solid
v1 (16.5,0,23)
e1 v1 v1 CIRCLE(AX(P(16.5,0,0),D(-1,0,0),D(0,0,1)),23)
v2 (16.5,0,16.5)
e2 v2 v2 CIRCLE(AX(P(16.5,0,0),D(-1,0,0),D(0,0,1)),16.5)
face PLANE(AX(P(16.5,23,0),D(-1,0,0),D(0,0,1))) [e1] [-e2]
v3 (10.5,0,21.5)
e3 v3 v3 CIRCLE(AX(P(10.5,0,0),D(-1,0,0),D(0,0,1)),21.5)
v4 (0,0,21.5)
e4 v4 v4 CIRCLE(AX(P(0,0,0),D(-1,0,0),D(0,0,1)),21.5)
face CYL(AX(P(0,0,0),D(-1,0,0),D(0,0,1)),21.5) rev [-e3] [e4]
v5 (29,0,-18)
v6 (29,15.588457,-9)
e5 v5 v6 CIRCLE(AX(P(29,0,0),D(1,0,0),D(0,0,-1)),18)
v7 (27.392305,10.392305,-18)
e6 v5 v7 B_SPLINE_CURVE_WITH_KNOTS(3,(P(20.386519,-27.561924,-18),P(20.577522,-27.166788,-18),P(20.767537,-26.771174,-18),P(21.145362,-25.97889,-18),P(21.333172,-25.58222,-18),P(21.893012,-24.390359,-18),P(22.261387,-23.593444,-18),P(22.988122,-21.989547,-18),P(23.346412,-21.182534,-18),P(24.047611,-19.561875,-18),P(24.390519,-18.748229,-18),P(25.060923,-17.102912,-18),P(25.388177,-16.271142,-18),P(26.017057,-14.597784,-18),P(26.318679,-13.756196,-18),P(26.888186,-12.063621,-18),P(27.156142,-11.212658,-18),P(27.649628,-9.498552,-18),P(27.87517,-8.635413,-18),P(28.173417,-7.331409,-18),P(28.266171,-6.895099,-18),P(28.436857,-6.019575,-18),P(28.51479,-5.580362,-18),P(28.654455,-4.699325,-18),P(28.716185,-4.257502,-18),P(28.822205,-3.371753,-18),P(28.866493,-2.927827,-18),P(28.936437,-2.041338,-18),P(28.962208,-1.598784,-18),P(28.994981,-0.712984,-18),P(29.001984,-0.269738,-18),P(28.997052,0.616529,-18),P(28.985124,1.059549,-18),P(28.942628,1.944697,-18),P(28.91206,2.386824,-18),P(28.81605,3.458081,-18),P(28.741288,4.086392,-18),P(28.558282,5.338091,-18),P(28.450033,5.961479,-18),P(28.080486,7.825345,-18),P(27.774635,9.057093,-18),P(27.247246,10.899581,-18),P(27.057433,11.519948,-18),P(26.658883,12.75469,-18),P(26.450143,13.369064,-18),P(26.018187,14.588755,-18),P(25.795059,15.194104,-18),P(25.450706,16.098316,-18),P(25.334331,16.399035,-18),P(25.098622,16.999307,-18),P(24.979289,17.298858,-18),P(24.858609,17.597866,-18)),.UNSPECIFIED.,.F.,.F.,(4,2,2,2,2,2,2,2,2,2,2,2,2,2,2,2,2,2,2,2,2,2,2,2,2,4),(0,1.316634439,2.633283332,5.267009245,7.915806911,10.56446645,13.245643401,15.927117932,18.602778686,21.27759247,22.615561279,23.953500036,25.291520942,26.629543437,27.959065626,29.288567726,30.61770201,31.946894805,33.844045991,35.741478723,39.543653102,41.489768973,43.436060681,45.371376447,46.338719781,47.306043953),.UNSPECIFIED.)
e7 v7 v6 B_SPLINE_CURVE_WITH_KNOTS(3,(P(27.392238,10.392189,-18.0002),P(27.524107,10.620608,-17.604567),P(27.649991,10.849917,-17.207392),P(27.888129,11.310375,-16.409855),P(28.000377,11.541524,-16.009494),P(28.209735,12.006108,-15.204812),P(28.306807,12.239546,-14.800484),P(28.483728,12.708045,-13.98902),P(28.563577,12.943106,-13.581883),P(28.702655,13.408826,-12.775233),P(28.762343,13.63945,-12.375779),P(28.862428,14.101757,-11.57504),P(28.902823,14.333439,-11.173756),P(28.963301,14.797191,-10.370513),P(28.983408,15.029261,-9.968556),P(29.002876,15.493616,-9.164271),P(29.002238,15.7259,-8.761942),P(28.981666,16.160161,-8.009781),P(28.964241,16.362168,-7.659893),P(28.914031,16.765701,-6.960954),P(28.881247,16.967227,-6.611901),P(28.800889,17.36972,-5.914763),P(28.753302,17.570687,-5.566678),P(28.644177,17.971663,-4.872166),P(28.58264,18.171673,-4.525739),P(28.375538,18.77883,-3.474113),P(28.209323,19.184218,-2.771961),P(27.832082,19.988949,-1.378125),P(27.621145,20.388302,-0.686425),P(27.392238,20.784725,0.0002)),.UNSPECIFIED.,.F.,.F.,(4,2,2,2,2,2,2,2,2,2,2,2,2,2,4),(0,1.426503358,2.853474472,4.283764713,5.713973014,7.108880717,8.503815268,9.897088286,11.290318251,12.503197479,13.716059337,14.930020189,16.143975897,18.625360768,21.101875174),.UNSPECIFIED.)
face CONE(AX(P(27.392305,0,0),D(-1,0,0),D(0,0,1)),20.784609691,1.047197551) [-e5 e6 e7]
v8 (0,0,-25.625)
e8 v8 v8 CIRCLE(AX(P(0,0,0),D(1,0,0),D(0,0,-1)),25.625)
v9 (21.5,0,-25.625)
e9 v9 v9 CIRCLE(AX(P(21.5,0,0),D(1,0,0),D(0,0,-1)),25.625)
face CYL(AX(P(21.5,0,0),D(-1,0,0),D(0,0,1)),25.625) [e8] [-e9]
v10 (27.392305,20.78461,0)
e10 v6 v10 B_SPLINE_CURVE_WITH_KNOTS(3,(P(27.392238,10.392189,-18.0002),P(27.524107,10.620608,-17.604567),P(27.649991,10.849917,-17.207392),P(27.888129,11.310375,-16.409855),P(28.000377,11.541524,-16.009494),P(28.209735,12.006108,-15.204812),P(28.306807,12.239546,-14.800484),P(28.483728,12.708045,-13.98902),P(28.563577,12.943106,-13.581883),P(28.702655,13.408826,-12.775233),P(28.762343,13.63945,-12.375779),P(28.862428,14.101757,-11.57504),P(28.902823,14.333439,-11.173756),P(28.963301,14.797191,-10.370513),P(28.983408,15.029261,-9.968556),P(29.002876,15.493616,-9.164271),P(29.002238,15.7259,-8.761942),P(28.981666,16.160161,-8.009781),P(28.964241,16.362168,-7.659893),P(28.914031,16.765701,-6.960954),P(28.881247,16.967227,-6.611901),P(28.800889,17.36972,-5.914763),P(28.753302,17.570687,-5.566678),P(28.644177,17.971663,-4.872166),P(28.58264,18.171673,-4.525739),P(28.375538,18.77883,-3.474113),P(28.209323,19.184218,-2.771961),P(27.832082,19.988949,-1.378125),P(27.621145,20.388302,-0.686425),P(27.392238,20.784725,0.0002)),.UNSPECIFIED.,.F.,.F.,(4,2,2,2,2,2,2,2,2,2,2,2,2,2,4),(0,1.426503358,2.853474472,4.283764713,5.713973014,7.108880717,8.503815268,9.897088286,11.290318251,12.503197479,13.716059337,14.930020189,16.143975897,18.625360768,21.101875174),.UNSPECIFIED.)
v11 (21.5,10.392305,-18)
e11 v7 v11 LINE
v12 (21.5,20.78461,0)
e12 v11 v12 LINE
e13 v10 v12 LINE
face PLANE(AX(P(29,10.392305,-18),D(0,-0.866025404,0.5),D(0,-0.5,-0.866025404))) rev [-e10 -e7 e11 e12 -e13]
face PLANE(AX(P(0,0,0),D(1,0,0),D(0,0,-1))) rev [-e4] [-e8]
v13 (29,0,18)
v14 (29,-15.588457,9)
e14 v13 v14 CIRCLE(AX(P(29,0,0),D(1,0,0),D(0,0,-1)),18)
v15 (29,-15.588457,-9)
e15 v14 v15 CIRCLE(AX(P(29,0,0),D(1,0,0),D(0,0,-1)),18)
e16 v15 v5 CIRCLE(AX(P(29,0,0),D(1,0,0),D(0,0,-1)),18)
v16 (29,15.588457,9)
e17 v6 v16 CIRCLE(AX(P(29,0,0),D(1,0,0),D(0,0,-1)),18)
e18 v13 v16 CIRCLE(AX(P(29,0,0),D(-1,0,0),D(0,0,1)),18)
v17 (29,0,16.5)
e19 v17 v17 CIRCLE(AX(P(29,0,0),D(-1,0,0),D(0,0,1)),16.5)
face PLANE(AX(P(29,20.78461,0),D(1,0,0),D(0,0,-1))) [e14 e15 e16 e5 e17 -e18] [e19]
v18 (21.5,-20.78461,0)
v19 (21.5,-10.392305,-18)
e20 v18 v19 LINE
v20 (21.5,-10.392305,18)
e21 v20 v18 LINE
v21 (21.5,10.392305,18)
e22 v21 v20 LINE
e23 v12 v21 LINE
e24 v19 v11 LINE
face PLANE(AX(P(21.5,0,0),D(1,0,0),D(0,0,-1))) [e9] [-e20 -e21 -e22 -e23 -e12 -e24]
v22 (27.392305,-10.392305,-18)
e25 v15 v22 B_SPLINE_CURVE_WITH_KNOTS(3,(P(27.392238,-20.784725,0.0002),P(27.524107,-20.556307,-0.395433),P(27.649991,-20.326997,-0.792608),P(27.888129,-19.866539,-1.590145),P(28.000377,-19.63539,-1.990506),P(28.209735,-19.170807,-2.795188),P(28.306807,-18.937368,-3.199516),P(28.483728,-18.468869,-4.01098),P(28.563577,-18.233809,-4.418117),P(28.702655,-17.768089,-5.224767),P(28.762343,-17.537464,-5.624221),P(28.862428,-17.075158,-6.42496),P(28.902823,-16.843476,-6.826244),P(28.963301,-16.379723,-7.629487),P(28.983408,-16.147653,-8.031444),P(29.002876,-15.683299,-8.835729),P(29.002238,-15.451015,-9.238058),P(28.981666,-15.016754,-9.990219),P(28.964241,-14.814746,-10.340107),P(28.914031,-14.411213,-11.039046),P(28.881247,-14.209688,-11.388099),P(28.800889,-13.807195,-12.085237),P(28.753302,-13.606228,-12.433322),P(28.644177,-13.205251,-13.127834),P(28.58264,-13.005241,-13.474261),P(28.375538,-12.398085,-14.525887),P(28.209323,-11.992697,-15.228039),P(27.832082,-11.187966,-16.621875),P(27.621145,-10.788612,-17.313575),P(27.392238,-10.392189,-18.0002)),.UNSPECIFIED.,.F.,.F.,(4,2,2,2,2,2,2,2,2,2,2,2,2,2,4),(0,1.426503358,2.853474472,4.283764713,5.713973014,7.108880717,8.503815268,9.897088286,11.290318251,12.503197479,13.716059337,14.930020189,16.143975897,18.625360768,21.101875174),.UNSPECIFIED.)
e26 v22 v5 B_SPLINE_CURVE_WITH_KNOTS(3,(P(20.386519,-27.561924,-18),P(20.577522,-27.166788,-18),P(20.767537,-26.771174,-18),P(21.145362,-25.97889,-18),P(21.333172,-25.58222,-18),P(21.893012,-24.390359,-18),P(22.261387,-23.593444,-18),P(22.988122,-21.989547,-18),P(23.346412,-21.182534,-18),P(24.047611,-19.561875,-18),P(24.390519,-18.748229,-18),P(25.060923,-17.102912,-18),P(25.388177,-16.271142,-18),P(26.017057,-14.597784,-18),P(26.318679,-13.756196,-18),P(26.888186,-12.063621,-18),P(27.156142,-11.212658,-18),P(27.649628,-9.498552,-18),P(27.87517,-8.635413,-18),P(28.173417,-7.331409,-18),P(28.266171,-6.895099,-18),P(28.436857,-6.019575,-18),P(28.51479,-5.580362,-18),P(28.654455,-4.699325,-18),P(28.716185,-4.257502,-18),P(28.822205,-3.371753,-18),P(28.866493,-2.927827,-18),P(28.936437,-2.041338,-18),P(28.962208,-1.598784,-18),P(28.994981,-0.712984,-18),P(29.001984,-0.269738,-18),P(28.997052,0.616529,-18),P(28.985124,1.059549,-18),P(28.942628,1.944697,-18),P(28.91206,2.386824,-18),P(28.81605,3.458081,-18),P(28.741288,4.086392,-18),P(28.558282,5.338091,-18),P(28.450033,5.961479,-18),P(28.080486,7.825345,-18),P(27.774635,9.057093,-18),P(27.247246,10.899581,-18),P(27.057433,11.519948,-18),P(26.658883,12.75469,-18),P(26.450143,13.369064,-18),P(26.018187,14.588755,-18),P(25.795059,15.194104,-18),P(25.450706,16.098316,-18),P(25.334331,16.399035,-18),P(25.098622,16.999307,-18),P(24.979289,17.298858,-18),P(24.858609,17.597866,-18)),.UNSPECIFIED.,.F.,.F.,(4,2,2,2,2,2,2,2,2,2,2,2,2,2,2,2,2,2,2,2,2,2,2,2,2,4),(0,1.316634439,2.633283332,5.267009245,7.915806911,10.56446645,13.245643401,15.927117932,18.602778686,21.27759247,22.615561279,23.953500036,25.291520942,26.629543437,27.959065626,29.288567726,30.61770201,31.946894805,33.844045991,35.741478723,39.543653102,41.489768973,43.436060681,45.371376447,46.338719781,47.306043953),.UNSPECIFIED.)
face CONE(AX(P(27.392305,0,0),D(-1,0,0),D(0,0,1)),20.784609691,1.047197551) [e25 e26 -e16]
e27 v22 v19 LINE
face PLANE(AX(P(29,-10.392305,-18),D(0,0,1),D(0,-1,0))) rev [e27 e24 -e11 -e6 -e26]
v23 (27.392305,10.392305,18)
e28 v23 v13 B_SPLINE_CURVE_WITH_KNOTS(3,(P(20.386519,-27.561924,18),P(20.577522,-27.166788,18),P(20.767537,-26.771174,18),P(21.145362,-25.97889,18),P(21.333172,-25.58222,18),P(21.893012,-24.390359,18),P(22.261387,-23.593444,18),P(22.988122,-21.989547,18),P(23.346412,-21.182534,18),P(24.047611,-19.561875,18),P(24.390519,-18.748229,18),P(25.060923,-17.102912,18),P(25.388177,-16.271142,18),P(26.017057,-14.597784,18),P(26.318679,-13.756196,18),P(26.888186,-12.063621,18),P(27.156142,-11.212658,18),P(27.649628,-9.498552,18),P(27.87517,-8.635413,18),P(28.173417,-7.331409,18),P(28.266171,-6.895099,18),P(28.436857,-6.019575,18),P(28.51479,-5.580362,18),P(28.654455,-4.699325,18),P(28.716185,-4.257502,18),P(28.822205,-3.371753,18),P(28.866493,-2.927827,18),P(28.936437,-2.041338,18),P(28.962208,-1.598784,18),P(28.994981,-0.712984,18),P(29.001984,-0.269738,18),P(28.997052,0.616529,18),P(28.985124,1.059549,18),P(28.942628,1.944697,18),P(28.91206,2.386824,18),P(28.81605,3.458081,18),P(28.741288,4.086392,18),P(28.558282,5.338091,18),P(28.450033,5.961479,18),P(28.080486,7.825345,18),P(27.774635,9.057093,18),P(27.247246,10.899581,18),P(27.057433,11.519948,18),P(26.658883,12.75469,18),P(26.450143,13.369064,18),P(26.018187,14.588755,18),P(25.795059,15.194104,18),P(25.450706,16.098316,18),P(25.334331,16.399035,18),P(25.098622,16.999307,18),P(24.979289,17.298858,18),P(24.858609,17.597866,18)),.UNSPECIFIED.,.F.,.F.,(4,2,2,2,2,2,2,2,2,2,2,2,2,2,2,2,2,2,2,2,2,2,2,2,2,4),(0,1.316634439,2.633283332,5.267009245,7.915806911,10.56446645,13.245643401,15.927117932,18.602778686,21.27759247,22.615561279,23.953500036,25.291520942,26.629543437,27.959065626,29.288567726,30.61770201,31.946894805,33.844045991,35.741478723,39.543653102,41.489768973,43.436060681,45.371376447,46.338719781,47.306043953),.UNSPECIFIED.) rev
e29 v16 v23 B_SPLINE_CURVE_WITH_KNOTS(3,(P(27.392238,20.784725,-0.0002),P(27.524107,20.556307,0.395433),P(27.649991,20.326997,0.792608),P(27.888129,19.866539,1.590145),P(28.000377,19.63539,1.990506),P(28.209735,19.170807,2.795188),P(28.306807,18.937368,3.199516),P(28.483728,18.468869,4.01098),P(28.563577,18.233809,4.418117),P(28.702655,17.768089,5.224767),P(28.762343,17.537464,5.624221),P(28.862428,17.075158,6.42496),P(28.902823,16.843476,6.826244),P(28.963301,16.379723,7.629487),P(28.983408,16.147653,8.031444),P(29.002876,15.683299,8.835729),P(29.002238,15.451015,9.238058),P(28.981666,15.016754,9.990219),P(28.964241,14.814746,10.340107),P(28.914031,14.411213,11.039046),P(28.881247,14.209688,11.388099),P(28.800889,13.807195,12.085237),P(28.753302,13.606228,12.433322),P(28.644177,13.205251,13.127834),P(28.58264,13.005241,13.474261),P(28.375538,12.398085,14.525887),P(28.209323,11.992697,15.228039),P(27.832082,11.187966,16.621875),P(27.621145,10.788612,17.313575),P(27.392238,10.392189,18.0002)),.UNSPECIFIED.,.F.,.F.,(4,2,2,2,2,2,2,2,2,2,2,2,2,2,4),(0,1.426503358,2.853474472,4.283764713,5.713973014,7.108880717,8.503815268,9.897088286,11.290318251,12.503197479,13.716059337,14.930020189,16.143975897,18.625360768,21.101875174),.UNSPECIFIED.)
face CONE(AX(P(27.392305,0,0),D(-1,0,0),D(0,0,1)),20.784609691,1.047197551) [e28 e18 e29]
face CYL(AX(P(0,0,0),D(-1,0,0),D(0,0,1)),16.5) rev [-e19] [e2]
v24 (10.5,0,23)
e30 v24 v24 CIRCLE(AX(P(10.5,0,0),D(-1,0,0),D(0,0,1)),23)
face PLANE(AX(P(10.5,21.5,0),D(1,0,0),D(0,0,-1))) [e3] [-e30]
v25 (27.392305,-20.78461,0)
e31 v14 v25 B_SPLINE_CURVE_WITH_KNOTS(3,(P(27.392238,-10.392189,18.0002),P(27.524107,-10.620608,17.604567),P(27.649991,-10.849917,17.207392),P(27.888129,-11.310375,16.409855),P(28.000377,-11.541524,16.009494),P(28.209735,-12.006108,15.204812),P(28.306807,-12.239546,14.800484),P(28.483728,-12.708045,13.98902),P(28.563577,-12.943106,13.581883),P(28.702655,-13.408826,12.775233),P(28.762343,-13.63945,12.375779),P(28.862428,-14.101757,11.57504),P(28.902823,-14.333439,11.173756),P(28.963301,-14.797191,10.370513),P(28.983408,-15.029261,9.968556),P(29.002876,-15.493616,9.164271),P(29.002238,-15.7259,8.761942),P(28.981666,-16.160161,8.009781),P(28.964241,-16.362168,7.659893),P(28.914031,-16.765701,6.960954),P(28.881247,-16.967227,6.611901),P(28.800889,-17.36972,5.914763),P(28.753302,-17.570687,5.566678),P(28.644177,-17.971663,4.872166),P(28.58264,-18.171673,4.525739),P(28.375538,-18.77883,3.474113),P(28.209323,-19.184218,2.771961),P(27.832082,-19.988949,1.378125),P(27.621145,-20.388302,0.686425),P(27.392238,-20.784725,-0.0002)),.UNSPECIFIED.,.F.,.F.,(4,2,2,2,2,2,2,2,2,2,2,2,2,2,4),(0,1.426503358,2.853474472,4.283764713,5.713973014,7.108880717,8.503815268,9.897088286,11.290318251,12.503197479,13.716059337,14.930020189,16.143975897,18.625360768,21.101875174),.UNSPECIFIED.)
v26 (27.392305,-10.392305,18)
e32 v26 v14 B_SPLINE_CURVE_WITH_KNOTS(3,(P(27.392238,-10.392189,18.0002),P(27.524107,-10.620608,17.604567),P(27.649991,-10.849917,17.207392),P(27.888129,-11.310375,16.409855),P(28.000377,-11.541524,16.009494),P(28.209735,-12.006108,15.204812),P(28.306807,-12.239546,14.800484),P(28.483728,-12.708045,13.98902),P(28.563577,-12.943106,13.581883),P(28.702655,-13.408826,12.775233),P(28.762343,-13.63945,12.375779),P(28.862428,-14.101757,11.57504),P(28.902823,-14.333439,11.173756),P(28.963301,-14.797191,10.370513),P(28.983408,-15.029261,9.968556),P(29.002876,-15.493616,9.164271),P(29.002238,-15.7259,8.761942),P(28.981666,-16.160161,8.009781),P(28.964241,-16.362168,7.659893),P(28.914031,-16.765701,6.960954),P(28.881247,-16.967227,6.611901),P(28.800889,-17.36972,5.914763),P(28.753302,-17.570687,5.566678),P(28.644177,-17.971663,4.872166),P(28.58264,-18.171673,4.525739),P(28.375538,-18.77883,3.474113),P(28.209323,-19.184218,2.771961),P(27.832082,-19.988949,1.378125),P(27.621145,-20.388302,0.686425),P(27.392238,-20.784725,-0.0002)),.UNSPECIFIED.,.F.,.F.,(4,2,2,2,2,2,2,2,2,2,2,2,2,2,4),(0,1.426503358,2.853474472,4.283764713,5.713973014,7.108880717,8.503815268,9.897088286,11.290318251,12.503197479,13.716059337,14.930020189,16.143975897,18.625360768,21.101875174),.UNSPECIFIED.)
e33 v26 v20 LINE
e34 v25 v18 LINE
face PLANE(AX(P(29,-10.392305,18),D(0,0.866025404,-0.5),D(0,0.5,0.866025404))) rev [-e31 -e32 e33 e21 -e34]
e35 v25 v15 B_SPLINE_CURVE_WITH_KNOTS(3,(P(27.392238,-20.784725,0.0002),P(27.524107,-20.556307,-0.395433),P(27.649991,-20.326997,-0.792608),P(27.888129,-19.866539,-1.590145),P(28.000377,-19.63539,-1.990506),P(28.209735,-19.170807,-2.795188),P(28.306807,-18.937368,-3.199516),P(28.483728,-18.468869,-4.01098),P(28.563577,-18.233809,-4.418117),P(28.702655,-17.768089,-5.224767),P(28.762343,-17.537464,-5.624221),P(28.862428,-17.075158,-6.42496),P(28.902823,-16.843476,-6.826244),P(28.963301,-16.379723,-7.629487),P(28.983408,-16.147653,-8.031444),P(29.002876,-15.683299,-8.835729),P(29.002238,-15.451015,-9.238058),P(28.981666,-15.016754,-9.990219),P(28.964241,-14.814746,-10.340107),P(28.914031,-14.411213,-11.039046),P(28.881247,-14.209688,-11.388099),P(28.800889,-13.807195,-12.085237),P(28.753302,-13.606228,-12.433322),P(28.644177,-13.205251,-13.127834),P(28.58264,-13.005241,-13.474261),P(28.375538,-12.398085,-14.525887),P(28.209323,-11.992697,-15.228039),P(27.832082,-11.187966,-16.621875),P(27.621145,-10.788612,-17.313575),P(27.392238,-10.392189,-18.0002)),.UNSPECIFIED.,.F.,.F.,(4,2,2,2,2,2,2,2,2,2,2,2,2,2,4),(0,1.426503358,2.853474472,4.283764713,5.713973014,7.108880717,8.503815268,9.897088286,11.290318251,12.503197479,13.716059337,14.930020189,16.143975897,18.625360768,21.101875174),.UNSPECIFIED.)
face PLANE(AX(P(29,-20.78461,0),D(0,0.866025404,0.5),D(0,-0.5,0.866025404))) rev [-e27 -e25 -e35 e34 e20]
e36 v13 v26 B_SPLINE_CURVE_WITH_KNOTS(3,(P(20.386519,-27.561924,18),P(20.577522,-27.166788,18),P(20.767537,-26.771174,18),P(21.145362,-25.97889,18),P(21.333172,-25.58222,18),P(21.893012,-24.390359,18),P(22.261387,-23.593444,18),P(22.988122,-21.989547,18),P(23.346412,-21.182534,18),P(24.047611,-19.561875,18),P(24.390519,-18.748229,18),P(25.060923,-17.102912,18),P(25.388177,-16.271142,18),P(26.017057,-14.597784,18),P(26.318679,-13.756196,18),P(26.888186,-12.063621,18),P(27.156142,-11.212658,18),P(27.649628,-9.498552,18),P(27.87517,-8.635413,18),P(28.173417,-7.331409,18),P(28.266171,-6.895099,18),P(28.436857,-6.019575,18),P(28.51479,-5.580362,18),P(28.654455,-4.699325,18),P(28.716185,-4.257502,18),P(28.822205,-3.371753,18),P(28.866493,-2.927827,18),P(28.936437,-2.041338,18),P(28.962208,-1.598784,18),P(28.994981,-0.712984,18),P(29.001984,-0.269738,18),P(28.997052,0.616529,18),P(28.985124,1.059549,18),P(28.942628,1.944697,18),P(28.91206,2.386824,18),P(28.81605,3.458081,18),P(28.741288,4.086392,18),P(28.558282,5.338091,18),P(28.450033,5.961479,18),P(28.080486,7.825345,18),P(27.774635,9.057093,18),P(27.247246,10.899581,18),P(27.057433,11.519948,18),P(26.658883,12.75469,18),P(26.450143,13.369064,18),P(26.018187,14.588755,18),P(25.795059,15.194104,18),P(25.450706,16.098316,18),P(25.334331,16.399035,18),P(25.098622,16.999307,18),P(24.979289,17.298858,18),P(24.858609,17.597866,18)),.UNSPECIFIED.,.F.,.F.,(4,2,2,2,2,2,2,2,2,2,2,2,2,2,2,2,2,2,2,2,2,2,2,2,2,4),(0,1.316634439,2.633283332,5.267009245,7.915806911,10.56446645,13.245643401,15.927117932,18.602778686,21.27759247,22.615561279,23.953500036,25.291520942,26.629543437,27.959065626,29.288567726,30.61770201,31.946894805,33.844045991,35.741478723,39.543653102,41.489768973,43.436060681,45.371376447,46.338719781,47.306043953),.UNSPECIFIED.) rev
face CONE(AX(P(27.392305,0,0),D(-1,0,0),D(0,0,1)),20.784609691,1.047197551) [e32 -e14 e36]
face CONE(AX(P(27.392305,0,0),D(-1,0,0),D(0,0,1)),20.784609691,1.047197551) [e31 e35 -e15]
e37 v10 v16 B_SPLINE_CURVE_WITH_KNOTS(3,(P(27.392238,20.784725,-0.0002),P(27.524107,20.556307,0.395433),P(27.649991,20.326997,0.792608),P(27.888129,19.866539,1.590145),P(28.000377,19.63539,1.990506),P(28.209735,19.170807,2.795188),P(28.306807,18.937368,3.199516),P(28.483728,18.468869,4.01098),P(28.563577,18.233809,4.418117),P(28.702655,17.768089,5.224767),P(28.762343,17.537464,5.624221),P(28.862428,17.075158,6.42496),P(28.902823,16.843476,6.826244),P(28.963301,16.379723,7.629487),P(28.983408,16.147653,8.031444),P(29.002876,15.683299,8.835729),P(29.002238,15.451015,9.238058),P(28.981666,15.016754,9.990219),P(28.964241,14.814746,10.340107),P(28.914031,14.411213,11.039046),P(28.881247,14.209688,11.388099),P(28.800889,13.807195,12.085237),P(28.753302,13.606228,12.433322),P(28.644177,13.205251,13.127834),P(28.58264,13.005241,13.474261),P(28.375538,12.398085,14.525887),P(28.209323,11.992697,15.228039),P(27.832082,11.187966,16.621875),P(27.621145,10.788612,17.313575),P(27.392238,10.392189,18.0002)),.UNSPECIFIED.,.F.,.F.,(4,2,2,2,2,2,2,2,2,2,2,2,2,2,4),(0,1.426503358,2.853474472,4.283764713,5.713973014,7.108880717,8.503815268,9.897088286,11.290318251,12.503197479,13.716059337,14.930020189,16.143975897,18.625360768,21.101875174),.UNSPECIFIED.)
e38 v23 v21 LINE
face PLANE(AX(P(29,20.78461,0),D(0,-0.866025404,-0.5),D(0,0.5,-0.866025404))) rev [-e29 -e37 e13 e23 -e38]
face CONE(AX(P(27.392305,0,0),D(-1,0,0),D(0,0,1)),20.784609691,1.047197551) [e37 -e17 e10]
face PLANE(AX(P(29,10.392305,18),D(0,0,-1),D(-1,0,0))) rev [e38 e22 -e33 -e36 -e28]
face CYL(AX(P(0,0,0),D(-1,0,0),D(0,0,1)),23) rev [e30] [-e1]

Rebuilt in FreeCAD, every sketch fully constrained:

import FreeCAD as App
import Part
import Sketcher

V = App.Vector
Q = App.Units.Quantity


def add_polygon(sketch, points):
    """Adds a closed chain of lines whose ends are joined by coincident constraints."""
    first, n = sketch.GeometryCount, len(points)
    for a, b in zip(points, points[1:] + points[:1]):
        sketch.addGeometry(Part.LineSegment(App.Vector(*a, 0), App.Vector(*b, 0)), False)
    for i in range(n):
        sketch.addConstraint(Sketcher.Constraint("Coincident", first + i, 2, first + (i + 1) % n, 1))

doc = App.newDocument("Part")
body = doc.addObject("PartDesign::Body", "Body")

# Sketch on YZ plane
sketch1 = body.newObject("Sketcher::SketchObject", "Sketch")
sketch1.AttachmentSupport = (doc.getObject("YZ_Plane"), [""])
sketch1.MapMode = "FlatFace"
sketch1.addGeometry(Part.Circle(V(0, 0, 0), V(0, 0, 1), 26), False)
sketch1.addConstraint(Sketcher.Constraint("Coincident", 0, 3, -1, 1))
sketch1.addConstraint(Sketcher.Constraint("Diameter", 0, 51.25))
pad1 = body.newObject("PartDesign::Pad", "Pad")
pad1.Profile = sketch1
pad1.Length = 21.5

# Sketch on YZ plane
sketch2 = body.newObject("Sketcher::SketchObject", "Sketch001")
sketch2.AttachmentSupport = (doc.getObject("YZ_Plane"), [""])
sketch2.MapMode = "FlatFace"
sketch2.AttachmentOffset = App.Placement(V(0, 0, 21.5), App.Rotation())
add_polygon(sketch2, [(21, 0), (10, 18), (-10, 18), (-21, 0), (-10, -18), (10, -18)])  # lines 0-5
sketch2.addConstraint(Sketcher.Constraint("Horizontal", 1))
sketch2.addConstraint(Sketcher.Constraint("Horizontal", 4))
sketch2.addConstraint(Sketcher.Constraint("Symmetric", 0, 2, 3, 2, -1, 1))
sketch2.addConstraint(Sketcher.Constraint("Symmetric", 2, 2, 5, 2, -1, 1))
sketch2.addConstraint(Sketcher.Constraint("PointOnObject", 2, 2, -1))
sketch2.addConstraint(Sketcher.Constraint("Parallel", 2, 5))
sketch2.addConstraint(Sketcher.Constraint("Vertical", 1, 2, 3, 2))
sketch2.addConstraint(Sketcher.Constraint("Angle", 0, Q("120 deg")))
sketch2.addConstraint(Sketcher.Constraint("DistanceY", -1, 1, 0, 2, 18.0))
sketch2.addConstraint(Sketcher.Constraint("DistanceX", 1, 2, 1, 1, 20.78461))
pad2 = body.newObject("PartDesign::Pad", "Pad001")
pad2.Profile = sketch2
pad2.Length = 7.5

# Sketch on XY plane
sketch3 = body.newObject("Sketcher::SketchObject", "Sketch002")
sketch3.AttachmentSupport = (doc.getObject("XY_Plane"), [""])
sketch3.MapMode = "FlatFace"
add_polygon(sketch3, [(29, 20.8), (27.4, 20.8), (29, 18)])  # lines 0-2
sketch3.addConstraint(Sketcher.Constraint("Horizontal", 0))
sketch3.addConstraint(Sketcher.Constraint("Vertical", 2))
sketch3.addConstraint(Sketcher.Constraint("Angle", 1, Q("-60 deg")))
sketch3.addConstraint(Sketcher.Constraint("DistanceX", -1, 1, 1, 2, 29.0))
sketch3.addConstraint(Sketcher.Constraint("DistanceY", -1, 1, 1, 2, 18.0))
sketch3.addConstraint(Sketcher.Constraint("DistanceY", 2, 1, 2, 2, 2.78461))
groove = body.newObject("PartDesign::Groove", "Groove")
groove.Profile = sketch3
groove.ReferenceAxis = (sketch3, ["H_Axis"])
groove.Angle = 360

# Sketch on XY plane
sketch4 = body.newObject("Sketcher::SketchObject", "Sketch003")
sketch4.AttachmentSupport = (doc.getObject("XY_Plane"), [""])
sketch4.MapMode = "FlatFace"
add_polygon(sketch4, [(0, 21.5), (0, 0), (29, 0), (29, 16.5), (16.5, 16.5), (16.5, 23), (10.5, 23), (10.5, 21.5)])  # lines 0-7
sketch4.addConstraint(Sketcher.Constraint("Vertical", 0))
sketch4.addConstraint(Sketcher.Constraint("Horizontal", 1))
sketch4.addConstraint(Sketcher.Constraint("Vertical", 2))
sketch4.addConstraint(Sketcher.Constraint("Horizontal", 3))
sketch4.addConstraint(Sketcher.Constraint("Vertical", 4))
sketch4.addConstraint(Sketcher.Constraint("Horizontal", 5))
sketch4.addConstraint(Sketcher.Constraint("Vertical", 6))
sketch4.addConstraint(Sketcher.Constraint("Horizontal", 7))
sketch4.addConstraint(Sketcher.Constraint("Coincident", 0, 2, -1, 1))
sketch4.addConstraint(Sketcher.Constraint("DistanceX", 1, 1, 1, 2, 29.0))
sketch4.addConstraint(Sketcher.Constraint("DistanceX", 5, 2, 5, 1, 6.0))
sketch4.addConstraint(Sketcher.Constraint("DistanceX", 3, 2, 3, 1, 12.5))
sketch4.addConstraint(Sketcher.Constraint("DistanceY", 0, 2, 0, 1, 21.5))
sketch4.addConstraint(Sketcher.Constraint("DistanceY", 2, 1, 2, 2, 16.5))
sketch4.addConstraint(Sketcher.Constraint("DistanceY", 4, 1, 4, 2, 6.5))
groove2 = body.newObject("PartDesign::Groove", "Groove001")
groove2.Profile = sketch4
groove2.ReferenceAxis = (sketch4, ["H_Axis"])
groove2.Angle = 360

doc.recompute()
